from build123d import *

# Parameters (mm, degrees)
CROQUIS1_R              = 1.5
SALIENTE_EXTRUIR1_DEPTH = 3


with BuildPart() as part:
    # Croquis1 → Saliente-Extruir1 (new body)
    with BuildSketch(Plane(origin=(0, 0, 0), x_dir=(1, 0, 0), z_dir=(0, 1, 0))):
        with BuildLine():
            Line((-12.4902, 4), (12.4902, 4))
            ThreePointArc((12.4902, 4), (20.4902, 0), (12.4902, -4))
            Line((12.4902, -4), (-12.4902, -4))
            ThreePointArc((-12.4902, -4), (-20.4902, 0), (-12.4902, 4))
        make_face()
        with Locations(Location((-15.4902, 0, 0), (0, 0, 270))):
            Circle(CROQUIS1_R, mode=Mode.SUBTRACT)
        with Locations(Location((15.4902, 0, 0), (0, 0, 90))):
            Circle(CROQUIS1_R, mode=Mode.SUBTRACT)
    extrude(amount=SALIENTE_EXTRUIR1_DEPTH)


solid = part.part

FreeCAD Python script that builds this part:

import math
import FreeCAD as App
import Part
import Sketcher
from FreeCAD import Vector

doc = App.newDocument("Part")
body = doc.addObject("PartDesign::Body", "Body")

# Sketch on XZ plane
sketch1 = body.newObject("Sketcher::SketchObject", "Sketch")
sketch1.AttachmentSupport = (doc.getObject("XZ_Plane"), [""])
sketch1.MapMode = "FlatFace"
sketch1.addGeometry([
    Part.LineSegment(Vector(12.4902, -4, 0), Vector(-12.4902, -4, 0)),  # 0
    Part.ArcOfCircle(Part.Circle(Vector(-15.4902, 0, 0), Vector(0, 0, 1), 5), math.radians(53.130102), math.radians(306.869898)),  # 1
    Part.LineSegment(Vector(-12.4902, 4, 0), Vector(12.4902, 4, 0)),  # 2
    Part.ArcOfCircle(Part.Circle(Vector(15.4902, 0, 0), Vector(0, 0, 1), 5), math.radians(-126.869898), math.radians(126.869898)),  # 3
    Part.Circle(Vector(15.4902, 0, 0), Vector(0, 0, 1), 1.5),  # 4
    Part.Circle(Vector(-15.4902, 0, 0), Vector(0, 0, 1), 1.5),  # 5
], False)
sketch1.addConstraint([
    Sketcher.Constraint("Coincident", 0, 2, 1, 2),
    Sketcher.Constraint("Coincident", 1, 1, 2, 1),
    Sketcher.Constraint("Coincident", 2, 2, 3, 2),
    Sketcher.Constraint("Coincident", 3, 1, 0, 1),
    Sketcher.Constraint("Horizontal", 0),
    Sketcher.Constraint("Horizontal", 2),
    Sketcher.Constraint("Coincident", 4, 3, 3, 3),
    Sketcher.Constraint("Coincident", 5, 3, 1, 3),
    Sketcher.Constraint("Equal", 1, 3),
    Sketcher.Constraint("Equal", 4, 5),
    Sketcher.Constraint("Symmetric", 1, 3, 3, 3, -1, 1),
    Sketcher.Constraint("Symmetric", 0, 2, 1, 1, -1),
    Sketcher.Constraint("Diameter", 4, 3.0),
    Sketcher.Constraint("Radius", 1, 5.0),
    Sketcher.Constraint("DistanceY", 0, 2, -1, 1, 4.0),
    Sketcher.Constraint("DistanceX", 0, 2, 0, 1, 24.9804),
])
pad1 = body.newObject("PartDesign::Pad", "Pad")
pad1.Profile = sketch1
pad1.Length = 3
pad1.Reversed = True

doc.recompute()
